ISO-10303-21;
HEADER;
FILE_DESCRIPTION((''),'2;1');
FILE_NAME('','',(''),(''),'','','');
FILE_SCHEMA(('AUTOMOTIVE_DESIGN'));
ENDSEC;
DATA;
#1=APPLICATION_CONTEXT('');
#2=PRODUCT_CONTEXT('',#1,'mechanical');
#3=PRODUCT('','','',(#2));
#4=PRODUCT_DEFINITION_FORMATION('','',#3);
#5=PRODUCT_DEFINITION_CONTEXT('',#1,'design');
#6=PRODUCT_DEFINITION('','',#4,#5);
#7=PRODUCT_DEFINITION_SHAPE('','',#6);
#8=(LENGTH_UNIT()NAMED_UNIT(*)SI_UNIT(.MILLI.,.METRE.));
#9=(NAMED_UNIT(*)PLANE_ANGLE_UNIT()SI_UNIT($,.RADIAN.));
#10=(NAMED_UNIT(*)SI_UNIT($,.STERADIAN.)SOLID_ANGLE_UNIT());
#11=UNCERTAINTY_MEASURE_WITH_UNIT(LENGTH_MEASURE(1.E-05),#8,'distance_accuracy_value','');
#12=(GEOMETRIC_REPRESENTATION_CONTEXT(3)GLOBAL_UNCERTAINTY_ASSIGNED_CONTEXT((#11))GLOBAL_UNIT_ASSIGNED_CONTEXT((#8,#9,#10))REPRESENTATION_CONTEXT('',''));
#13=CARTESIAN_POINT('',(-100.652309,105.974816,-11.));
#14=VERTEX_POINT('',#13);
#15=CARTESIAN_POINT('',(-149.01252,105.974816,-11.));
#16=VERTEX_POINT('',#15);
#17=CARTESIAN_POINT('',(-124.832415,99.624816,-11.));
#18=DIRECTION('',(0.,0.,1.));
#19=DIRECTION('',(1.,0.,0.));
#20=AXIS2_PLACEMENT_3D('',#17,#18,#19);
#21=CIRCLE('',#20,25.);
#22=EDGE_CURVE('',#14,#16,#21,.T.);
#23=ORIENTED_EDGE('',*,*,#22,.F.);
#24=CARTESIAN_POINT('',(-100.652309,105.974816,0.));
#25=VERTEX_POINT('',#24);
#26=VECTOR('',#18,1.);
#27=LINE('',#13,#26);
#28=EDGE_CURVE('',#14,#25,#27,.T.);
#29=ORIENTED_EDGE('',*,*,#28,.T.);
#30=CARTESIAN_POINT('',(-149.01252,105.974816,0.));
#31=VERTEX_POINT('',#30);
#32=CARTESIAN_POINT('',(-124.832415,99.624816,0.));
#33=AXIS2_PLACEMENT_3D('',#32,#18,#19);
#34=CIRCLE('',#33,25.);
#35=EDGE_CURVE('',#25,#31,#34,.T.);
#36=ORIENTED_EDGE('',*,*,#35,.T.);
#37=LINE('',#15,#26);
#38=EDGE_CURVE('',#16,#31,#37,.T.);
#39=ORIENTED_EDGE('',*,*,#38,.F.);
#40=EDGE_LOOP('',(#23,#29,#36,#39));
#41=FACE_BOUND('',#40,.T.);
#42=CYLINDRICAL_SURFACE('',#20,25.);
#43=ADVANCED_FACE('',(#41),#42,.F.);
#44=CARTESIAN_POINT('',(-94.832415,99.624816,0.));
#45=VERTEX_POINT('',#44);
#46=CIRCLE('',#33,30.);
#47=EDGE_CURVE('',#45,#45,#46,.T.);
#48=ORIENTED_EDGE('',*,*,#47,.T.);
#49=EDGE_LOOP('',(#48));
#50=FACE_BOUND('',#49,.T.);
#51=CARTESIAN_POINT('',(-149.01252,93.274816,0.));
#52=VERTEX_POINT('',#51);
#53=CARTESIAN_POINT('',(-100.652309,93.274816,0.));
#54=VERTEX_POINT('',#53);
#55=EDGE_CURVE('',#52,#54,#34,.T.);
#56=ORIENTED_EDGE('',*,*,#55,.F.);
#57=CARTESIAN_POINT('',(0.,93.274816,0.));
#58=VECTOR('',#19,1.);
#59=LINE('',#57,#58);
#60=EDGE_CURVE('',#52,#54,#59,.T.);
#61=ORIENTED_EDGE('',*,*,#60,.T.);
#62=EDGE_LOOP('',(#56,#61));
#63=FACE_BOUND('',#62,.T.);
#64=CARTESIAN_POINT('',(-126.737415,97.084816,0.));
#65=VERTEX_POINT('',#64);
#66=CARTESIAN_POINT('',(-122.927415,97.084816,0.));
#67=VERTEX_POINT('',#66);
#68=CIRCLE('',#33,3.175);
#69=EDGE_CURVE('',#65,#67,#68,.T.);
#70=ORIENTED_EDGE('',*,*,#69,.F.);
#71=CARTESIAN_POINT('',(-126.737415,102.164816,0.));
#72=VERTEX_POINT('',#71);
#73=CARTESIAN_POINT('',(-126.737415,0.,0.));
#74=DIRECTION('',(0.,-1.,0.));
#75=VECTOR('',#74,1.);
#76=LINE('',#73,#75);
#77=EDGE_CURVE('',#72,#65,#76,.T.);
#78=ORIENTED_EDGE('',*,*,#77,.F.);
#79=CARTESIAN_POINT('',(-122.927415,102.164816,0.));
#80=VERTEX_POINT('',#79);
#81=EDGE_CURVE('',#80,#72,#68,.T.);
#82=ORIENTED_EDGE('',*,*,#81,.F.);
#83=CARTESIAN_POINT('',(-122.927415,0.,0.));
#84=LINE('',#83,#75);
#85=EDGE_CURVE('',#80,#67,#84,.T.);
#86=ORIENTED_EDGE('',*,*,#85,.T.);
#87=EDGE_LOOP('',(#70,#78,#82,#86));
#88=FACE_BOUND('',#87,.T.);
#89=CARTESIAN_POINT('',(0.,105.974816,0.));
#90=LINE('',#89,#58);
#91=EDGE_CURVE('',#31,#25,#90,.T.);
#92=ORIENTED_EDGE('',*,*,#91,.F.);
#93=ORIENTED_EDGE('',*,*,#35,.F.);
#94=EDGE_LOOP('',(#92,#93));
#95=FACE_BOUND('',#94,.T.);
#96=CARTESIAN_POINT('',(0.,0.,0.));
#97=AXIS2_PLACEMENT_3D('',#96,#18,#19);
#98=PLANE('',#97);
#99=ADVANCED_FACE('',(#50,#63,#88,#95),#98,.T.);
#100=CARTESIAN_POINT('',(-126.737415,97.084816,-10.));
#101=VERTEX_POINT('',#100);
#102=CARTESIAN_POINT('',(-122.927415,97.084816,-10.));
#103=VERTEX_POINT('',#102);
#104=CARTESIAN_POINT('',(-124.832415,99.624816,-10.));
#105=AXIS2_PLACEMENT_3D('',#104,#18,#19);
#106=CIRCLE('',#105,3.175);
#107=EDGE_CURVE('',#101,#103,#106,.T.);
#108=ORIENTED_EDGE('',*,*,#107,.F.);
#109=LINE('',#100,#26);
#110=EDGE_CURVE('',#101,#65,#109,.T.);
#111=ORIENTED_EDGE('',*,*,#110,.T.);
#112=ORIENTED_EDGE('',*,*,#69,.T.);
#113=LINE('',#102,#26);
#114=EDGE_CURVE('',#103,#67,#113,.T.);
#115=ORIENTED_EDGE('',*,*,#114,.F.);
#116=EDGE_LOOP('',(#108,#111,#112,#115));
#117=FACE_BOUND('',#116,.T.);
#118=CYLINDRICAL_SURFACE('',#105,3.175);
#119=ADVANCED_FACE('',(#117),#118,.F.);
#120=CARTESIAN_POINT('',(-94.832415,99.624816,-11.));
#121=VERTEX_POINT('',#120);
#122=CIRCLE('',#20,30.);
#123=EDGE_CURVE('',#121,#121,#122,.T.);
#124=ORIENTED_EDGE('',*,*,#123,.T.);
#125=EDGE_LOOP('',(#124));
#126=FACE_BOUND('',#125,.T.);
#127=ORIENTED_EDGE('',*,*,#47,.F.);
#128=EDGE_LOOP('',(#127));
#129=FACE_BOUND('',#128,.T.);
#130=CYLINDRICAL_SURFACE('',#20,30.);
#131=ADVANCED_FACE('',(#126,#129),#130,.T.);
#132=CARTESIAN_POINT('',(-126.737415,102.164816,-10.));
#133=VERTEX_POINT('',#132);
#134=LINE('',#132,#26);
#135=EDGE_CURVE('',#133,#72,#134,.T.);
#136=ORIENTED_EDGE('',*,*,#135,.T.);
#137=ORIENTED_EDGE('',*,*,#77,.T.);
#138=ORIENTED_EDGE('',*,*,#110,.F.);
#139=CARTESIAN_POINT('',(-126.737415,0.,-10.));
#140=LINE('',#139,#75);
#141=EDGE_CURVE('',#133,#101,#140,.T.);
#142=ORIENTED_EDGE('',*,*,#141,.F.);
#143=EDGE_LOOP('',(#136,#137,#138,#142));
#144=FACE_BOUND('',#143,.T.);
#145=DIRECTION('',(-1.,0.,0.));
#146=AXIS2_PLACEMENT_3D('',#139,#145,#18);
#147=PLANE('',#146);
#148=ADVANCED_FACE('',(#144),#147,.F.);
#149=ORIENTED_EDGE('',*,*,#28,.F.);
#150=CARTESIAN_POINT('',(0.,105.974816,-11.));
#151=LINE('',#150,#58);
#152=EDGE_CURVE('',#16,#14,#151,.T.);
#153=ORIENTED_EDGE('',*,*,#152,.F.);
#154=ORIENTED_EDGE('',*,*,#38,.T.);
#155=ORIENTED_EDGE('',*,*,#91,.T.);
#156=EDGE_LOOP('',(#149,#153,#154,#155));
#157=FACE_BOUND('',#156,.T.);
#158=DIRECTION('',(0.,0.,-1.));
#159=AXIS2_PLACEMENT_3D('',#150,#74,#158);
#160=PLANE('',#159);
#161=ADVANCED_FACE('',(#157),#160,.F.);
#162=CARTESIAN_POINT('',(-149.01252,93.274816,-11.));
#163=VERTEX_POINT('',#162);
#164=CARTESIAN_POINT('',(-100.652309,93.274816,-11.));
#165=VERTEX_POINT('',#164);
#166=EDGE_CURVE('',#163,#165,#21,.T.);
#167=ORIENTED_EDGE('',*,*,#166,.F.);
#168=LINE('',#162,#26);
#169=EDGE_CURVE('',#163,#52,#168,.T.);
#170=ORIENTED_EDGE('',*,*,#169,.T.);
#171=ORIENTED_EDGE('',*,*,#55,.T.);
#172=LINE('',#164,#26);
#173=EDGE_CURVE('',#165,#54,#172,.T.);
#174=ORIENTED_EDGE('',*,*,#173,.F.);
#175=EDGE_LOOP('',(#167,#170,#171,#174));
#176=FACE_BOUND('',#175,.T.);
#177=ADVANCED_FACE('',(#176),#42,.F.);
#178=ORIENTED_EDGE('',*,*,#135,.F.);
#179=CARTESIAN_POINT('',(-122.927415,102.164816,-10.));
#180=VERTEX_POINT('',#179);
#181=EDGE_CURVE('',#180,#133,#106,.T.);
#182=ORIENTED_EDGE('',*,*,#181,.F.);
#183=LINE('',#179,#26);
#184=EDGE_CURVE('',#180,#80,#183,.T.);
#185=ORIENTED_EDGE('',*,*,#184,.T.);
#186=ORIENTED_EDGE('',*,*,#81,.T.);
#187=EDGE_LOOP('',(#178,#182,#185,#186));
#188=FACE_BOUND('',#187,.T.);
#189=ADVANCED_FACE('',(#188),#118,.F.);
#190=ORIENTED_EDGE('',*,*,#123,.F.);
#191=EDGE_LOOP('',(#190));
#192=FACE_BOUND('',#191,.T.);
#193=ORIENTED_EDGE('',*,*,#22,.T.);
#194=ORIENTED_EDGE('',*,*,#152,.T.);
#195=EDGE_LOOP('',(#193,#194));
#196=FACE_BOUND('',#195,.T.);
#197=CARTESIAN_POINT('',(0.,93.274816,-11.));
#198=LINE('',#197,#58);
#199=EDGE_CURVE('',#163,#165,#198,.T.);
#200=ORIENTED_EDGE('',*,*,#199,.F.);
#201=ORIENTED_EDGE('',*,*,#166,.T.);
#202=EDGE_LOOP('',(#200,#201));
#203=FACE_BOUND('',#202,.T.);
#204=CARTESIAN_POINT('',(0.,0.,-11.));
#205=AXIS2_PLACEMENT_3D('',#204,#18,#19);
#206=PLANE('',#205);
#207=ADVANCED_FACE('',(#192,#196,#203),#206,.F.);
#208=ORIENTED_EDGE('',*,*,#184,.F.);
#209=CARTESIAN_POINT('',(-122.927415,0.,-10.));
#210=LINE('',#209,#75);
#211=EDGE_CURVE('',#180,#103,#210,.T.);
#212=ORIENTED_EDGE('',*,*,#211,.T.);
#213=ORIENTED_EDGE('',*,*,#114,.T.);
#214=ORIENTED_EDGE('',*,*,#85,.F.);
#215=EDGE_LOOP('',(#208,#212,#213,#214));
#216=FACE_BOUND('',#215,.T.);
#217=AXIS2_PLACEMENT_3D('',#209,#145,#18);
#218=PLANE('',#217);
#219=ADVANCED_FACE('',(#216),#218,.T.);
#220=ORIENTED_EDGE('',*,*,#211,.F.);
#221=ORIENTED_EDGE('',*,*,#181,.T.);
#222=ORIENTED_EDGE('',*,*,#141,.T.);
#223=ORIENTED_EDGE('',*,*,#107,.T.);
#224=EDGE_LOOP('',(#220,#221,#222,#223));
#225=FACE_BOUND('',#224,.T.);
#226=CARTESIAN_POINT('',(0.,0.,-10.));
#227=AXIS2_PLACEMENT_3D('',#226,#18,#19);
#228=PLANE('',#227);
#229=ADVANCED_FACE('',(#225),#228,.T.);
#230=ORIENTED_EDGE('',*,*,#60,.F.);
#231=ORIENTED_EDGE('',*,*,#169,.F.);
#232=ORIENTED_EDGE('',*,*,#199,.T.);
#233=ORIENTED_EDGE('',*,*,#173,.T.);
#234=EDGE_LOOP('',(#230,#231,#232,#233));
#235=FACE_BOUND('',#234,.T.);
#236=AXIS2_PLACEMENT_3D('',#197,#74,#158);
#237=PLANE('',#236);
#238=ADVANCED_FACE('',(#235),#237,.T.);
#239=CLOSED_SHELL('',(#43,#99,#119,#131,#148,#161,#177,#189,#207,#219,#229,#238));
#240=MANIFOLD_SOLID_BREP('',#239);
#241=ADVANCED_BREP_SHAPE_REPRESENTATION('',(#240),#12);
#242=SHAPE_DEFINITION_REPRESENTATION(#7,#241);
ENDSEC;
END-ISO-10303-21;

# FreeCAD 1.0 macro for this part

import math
import FreeCAD as App
import Part
import Sketcher
from FreeCAD import Vector

doc = App.newDocument("Part")
body = doc.addObject("PartDesign::Body", "Body")

sketch1 = body.newObject("Sketcher::SketchObject", "Sketch")
sketch1.AttachmentSupport = (doc.getObject("XY_Plane"), [""])
sketch1.MapMode = "FlatFace"
sketch1.addGeometry([
    Part.Circle(Vector(-125, 100, 0), Vector(0, 0, 1), 30),
    Part.ArcOfCircle(Part.Circle(Vector(-125, 100, 0), Vector(0, 0, 1), 25), math.radians(15), math.radians(165)),
    Part.LineSegment(Vector(-101, 106, 0), Vector(-149, 106, 0)),
    Part.ArcOfCircle(Part.Circle(Vector(-125, 100, 0), Vector(0, 0, 1), 25), math.radians(-165), math.radians(-15)),
    Part.LineSegment(Vector(-149, 93, 0), Vector(-101, 93, 0)),
], False)
sketch1.addConstraint([
    Sketcher.Constraint("Coincident", 1, 1, 2, 1),
    Sketcher.Constraint("Coincident", 2, 2, 1, 2),
    Sketcher.Constraint("Coincident", 3, 1, 4, 1),
    Sketcher.Constraint("Coincident", 4, 2, 3, 2),
    Sketcher.Constraint("Horizontal", 2),
    Sketcher.Constraint("Horizontal", 4),
    Sketcher.Constraint("Coincident", 1, 3, 0, 3),
    Sketcher.Constraint("Coincident", 3, 3, 0, 3),
    Sketcher.Constraint("Equal", 1, 3),
    Sketcher.Constraint("Vertical", 2, 2, 3, 1),
    Sketcher.Constraint("Diameter", 0, 60.0),
    Sketcher.Constraint("Radius", 1, 25.0),
    Sketcher.Constraint("DistanceY", 3, 1, 2, 2, 12.7),
    Sketcher.Constraint("DistanceX", 1, 1, -1, 1, 100.652309),
    Sketcher.Constraint("DistanceY", -1, 1, 0, 3, 99.624816),
])
pad1 = body.newObject("PartDesign::Pad", "Pad")
pad1.Profile = sketch1
pad1.Length = 11
pad1.Reversed = True

sketch2 = body.newObject("Sketcher::SketchObject", "Sketch001")
sketch2.AttachmentSupport = (doc.getObject("XY_Plane"), [""])
sketch2.MapMode = "FlatFace"
sketch2.addGeometry([
    Part.LineSegment(Vector(-126.7, 102.2, 0), Vector(-126.7, 97.1, 0)),
    Part.ArcOfCircle(Part.Circle(Vector(-124.8, 99.6, 0), Vector(0, 0, 1), 3.2), math.radians(-127), math.radians(-53)),
    Part.LineSegment(Vector(-122.9, 97.1, 0), Vector(-122.9, 102.2, 0)),
    Part.ArcOfCircle(Part.Circle(Vector(-124.8, 99.6, 0), Vector(0, 0, 1), 3.2), math.radians(53), math.radians(127)),
], False)
sketch2.addConstraint([
    Sketcher.Constraint("Coincident", 0, 2, 1, 1),
    Sketcher.Constraint("Coincident", 1, 2, 2, 1),
    Sketcher.Constraint("Coincident", 2, 2, 3, 1),
    Sketcher.Constraint("Coincident", 3, 2, 0, 1),
    Sketcher.Constraint("Vertical", 0),
    Sketcher.Constraint("Vertical", 2),
    Sketcher.Constraint("Coincident", 3, 3, 1, 3),
    Sketcher.Constraint("Equal", 1, 3),
    Sketcher.Constraint("Horizontal", 0, 2, 1, 2),
    Sketcher.Constraint("Radius", 1, 3.175),
    Sketcher.Constraint("DistanceY", 0, 2, 0, 1, 5.08),
    Sketcher.Constraint("DistanceX", 1, 3, -1, 1, 124.832415),
    Sketcher.Constraint("DistanceY", -1, 1, 1, 3, 99.624816),
])
pocket1 = body.newObject("PartDesign::Pocket", "Pocket")
pocket1.Profile = sketch2
pocket1.Length = 10

doc.recompute()
